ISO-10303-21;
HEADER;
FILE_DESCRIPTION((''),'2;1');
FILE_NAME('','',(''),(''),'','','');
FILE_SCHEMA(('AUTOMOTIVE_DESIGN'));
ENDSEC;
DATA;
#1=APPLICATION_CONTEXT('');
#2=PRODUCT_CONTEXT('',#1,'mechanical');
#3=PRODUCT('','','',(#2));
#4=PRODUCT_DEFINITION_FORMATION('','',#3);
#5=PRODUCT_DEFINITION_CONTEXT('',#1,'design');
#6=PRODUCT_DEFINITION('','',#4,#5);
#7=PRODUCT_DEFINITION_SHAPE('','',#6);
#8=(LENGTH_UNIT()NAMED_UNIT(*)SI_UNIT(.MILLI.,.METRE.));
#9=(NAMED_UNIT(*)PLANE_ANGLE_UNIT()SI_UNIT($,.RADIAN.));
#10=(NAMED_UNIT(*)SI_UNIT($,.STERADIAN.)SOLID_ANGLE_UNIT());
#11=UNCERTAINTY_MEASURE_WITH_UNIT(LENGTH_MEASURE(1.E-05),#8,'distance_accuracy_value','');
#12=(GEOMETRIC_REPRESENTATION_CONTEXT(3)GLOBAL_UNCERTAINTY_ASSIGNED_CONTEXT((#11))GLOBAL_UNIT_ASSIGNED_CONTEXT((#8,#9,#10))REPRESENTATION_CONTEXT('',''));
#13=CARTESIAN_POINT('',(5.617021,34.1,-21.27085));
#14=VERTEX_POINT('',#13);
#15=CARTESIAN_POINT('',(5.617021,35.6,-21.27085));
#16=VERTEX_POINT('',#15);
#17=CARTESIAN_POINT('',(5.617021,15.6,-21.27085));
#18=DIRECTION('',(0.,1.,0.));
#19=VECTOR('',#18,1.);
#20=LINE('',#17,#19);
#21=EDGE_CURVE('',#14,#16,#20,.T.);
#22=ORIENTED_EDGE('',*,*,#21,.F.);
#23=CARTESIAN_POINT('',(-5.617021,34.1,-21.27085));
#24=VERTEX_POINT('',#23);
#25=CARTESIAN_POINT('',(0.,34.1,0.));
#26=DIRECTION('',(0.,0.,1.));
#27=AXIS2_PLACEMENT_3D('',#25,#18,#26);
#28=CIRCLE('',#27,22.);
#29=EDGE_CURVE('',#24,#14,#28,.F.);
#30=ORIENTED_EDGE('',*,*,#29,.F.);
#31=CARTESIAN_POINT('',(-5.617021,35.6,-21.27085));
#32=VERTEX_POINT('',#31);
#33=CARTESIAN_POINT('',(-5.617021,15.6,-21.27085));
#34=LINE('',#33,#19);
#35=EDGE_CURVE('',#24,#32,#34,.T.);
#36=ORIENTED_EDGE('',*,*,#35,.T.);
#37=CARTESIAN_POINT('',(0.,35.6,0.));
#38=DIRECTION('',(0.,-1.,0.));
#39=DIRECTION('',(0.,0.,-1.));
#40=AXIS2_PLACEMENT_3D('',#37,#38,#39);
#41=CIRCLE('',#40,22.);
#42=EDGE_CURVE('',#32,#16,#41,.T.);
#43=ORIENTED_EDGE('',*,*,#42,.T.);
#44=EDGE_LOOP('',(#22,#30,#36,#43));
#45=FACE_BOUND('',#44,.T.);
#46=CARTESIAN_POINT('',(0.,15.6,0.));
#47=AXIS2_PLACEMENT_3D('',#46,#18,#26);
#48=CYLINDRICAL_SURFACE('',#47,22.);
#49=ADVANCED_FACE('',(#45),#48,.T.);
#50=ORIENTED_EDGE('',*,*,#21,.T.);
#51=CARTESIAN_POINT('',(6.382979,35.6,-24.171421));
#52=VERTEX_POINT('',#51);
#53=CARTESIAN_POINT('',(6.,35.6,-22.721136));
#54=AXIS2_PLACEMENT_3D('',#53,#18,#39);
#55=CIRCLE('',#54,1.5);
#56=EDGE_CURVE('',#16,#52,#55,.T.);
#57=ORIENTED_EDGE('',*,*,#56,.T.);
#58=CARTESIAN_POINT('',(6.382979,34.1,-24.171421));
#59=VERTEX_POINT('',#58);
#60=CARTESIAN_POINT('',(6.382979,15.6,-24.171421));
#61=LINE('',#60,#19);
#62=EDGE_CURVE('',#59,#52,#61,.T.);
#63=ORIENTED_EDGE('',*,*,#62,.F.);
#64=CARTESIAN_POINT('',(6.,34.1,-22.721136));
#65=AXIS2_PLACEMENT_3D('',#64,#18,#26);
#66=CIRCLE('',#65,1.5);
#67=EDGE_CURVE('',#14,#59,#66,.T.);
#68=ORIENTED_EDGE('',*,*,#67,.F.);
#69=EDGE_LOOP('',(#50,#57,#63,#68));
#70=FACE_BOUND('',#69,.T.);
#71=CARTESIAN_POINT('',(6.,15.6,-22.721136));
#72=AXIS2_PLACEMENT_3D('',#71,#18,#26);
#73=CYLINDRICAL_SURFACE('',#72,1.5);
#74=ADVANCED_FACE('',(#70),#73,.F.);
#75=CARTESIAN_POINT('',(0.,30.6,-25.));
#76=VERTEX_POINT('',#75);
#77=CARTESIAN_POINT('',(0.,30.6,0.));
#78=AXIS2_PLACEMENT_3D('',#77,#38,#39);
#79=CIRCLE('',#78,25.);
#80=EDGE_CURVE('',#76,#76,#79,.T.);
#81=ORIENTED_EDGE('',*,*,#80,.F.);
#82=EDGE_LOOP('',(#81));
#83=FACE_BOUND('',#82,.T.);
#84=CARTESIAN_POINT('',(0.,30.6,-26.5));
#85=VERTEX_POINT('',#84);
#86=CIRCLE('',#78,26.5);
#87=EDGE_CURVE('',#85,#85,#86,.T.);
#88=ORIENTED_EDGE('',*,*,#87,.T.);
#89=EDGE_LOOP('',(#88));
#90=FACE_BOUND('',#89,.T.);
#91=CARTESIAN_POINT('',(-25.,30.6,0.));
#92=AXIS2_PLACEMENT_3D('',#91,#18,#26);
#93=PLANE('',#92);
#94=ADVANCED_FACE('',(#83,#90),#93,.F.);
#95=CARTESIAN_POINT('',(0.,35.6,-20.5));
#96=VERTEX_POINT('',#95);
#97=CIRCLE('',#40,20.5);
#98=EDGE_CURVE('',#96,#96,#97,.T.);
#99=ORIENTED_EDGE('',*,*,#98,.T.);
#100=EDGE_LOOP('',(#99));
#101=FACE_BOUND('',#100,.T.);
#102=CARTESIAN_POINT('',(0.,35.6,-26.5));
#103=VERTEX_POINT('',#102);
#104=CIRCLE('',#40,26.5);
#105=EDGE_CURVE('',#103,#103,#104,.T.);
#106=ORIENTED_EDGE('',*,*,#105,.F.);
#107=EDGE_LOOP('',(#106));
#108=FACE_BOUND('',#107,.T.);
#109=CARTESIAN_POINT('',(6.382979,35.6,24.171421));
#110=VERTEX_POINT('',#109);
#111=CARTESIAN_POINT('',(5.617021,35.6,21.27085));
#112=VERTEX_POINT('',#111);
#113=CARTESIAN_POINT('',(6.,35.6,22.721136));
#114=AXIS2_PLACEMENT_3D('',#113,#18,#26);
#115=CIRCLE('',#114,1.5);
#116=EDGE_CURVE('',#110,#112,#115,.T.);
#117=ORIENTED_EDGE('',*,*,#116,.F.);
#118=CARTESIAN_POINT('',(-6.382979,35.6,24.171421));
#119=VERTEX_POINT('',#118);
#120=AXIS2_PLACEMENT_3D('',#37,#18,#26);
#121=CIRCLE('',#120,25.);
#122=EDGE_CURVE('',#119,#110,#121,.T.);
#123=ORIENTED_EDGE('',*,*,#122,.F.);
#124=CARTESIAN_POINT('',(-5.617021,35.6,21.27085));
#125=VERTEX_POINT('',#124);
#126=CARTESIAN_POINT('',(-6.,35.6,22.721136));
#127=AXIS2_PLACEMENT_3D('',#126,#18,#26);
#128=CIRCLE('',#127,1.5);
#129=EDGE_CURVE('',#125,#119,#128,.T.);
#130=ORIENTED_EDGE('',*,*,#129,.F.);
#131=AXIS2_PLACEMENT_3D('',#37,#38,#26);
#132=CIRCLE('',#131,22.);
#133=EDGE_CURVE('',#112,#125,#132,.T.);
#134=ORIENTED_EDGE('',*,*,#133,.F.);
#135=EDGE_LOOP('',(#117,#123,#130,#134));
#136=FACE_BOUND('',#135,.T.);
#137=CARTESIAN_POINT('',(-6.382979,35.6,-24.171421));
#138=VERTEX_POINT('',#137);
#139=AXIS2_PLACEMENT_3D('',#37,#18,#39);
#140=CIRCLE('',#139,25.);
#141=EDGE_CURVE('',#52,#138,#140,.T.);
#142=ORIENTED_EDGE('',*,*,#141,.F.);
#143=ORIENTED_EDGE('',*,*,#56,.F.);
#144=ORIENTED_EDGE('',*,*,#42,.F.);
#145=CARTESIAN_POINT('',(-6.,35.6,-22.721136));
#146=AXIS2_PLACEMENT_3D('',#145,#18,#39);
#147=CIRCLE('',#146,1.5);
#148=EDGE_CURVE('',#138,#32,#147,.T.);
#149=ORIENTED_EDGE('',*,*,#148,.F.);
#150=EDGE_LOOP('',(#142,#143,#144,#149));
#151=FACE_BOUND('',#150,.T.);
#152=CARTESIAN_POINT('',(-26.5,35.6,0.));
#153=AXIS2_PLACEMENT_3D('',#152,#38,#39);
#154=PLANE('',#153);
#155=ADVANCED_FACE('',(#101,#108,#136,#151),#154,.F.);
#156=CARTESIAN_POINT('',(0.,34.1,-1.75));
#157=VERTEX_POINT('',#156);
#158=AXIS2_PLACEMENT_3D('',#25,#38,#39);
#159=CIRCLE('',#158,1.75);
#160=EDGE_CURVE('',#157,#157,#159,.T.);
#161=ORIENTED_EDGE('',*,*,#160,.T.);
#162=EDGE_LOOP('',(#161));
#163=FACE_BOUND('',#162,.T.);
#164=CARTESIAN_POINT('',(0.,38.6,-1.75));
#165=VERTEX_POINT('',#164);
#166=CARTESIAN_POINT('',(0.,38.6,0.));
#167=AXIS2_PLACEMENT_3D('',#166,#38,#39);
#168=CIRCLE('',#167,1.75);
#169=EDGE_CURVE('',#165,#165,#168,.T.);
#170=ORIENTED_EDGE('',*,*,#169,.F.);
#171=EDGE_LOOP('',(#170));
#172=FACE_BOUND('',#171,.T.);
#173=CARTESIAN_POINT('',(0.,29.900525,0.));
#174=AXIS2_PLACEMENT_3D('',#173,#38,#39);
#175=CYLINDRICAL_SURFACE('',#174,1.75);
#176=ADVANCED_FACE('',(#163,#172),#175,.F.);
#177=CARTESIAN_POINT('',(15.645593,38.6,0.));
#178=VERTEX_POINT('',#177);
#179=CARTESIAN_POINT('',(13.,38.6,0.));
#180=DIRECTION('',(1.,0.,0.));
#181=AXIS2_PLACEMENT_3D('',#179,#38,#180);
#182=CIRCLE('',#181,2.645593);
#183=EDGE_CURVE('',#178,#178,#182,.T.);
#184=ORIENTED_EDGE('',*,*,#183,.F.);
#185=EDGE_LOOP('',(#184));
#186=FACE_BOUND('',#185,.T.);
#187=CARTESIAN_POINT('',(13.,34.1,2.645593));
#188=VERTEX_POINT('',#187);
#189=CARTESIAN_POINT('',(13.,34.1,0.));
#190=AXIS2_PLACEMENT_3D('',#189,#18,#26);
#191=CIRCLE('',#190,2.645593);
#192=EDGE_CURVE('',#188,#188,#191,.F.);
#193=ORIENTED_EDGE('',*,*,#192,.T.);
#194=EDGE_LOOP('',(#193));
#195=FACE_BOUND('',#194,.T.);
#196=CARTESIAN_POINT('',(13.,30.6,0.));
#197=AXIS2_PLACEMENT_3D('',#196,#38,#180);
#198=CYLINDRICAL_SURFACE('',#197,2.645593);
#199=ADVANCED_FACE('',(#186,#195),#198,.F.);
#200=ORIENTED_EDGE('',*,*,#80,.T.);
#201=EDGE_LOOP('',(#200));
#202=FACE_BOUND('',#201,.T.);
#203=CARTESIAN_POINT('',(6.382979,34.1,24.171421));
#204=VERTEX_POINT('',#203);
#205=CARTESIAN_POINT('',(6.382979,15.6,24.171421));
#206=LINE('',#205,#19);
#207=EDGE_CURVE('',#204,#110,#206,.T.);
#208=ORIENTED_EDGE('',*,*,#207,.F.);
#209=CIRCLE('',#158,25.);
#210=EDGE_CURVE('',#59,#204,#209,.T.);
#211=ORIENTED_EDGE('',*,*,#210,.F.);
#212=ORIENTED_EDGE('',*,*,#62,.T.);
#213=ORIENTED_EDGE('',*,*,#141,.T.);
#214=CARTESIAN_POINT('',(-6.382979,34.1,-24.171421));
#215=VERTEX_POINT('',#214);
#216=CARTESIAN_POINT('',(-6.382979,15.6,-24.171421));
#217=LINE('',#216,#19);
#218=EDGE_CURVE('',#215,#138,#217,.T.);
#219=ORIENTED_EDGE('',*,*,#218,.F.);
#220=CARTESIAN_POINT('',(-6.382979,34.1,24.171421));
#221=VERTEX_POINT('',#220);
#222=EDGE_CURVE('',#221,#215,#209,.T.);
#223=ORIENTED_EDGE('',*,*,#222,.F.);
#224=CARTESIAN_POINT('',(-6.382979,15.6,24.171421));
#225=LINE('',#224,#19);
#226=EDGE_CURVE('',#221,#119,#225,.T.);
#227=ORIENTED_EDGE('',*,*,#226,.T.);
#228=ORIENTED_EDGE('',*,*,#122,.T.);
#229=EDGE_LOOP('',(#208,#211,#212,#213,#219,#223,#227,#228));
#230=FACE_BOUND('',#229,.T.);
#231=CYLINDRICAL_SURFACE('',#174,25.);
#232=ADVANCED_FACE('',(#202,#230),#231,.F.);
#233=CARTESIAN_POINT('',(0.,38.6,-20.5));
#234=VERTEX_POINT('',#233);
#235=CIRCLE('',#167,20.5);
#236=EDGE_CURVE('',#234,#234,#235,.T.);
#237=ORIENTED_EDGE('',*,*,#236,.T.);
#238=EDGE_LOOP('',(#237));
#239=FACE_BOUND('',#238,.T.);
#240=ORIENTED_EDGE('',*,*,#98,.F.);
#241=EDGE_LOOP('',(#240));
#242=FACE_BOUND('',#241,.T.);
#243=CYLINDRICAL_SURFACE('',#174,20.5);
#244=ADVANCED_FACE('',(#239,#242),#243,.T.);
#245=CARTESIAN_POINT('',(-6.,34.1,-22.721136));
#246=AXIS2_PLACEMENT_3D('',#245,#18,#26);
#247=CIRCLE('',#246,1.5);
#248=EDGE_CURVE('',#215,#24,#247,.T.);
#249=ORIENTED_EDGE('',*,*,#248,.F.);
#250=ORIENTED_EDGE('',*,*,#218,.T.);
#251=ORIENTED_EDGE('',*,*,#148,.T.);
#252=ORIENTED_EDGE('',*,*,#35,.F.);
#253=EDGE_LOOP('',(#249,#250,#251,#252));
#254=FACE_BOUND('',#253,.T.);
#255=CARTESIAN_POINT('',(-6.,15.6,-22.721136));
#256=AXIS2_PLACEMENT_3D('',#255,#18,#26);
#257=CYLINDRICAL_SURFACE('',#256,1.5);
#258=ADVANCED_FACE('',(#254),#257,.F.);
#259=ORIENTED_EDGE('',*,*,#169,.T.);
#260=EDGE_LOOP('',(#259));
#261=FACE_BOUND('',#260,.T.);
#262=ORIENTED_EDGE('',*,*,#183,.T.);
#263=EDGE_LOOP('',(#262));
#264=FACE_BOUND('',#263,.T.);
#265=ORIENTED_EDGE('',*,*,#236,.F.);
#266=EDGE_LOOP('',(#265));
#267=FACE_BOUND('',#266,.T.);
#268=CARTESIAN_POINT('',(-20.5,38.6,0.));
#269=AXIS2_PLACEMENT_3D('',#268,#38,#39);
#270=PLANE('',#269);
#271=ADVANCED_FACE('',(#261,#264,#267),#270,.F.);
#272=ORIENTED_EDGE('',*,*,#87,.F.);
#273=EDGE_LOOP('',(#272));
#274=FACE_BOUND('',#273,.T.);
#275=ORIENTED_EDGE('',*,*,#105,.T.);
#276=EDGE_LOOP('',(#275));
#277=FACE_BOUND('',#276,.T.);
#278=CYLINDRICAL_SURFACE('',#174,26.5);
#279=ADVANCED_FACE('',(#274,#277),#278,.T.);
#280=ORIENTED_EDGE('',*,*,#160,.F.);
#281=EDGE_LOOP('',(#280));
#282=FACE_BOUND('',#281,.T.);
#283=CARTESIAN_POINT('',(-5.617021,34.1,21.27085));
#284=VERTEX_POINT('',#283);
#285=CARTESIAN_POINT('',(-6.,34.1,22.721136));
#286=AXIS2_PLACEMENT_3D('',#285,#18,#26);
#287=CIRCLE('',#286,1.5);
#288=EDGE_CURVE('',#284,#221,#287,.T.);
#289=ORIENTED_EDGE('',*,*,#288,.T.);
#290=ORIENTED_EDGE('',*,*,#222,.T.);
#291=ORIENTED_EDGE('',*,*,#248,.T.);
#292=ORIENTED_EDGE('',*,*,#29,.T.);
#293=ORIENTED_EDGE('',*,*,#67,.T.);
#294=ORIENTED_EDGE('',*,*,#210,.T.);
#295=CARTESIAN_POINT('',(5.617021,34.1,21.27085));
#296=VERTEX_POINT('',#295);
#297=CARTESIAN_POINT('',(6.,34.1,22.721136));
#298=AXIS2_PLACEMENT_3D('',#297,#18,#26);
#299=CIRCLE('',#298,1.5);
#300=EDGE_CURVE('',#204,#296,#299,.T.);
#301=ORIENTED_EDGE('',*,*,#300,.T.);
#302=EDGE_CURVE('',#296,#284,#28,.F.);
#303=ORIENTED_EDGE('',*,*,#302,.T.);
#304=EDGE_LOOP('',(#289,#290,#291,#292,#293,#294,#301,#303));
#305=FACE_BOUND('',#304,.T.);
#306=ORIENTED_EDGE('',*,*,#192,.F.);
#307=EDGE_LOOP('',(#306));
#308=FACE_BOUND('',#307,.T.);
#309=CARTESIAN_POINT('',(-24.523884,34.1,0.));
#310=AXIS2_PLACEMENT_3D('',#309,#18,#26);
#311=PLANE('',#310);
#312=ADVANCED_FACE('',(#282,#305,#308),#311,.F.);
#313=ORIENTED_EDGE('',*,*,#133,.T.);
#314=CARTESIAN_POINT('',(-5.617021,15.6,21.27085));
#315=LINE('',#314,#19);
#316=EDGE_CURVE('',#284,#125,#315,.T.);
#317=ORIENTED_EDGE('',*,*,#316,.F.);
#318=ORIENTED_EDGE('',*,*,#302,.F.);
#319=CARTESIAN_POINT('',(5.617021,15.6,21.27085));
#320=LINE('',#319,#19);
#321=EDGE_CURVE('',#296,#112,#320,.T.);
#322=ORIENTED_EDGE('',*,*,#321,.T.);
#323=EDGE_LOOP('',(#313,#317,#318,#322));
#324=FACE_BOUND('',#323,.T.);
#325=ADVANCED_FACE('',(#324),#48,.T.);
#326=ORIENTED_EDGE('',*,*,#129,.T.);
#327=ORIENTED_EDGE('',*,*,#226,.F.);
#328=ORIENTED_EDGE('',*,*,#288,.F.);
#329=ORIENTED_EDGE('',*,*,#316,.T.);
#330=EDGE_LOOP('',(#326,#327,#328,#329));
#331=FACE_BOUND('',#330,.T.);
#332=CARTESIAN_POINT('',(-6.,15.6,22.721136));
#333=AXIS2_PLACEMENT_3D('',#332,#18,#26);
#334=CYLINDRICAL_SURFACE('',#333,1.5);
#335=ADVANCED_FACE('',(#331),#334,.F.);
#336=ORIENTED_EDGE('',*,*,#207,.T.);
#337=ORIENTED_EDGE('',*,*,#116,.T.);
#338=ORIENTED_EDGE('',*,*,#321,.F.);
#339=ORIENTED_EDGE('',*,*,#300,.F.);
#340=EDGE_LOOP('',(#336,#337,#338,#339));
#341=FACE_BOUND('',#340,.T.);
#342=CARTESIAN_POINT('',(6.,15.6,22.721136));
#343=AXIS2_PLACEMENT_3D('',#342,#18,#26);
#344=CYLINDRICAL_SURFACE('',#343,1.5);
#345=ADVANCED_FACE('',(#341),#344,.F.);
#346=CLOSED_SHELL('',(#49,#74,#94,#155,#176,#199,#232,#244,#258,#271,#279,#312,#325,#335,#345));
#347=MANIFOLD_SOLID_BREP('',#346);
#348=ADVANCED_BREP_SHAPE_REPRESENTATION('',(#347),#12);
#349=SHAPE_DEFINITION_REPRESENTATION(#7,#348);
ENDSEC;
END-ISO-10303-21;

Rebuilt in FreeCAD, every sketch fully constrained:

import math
import FreeCAD as App
import Part
import Sketcher
Q = App.Units.Quantity


def add_polygon(sketch, points):
    """Adds a closed chain of lines whose ends are joined by coincident constraints."""
    first, n = sketch.GeometryCount, len(points)
    for a, b in zip(points, points[1:] + points[:1]):
        sketch.addGeometry(Part.LineSegment(App.Vector(*a, 0), App.Vector(*b, 0)), False)
    for i in range(n):
        sketch.addConstraint(Sketcher.Constraint("Coincident", first + i, 2, first + (i + 1) % n, 1))

doc = App.newDocument("Part")
params = doc.addObject("Spreadsheet::Sheet", "Params")
for row, (alias, value) in enumerate([
    ("sketch1_width", "6 mm"),
    ("sketch1_height", "5 mm"),
    ("sketch1_height2", "3 mm"),
    ("sketch1_width2", "1.5 mm"),
    ("sketch1_height3", "3.5 mm"),
    ("revolution_angle", "360 deg"),
    ("groove_angle", "360 deg"),
    ("sketch3_radius", "25 mm"),
    ("sketch3_radius2", "22 mm"),
    ("pocket1_length", "20 mm"),
    ("sketch4_radius", "22 mm"),
    ("sketch4_radius2", "25 mm"),
    ("pocket2_length", "10 mm"),
], start=1):
    params.set(f"A{row}", alias)
    params.set(f"B{row}", "=" + value)
    params.setAlias(f"B{row}", alias)

body = doc.addObject("PartDesign::Body", "Body")

sketch1 = body.newObject("Sketcher::SketchObject", "Sketch")
sketch1.AttachmentSupport = (doc.getObject("XY_Plane"), [""])
sketch1.MapMode = "FlatFace"
add_polygon(sketch1, [(-26.5, 35.6), (-26.5, 30.6), (-25, 30.6), (-25, 34.1), (-1.8, 34.1), (-1.8, 38.6), (-20.5, 38.6), (-20.5, 35.6)])
sketch1.addConstraint([
    Sketcher.Constraint("Vertical", 0),
    Sketcher.Constraint("Horizontal", 1),
    Sketcher.Constraint("Vertical", 2),
    Sketcher.Constraint("Horizontal", 3),
    Sketcher.Constraint("Vertical", 4),
    Sketcher.Constraint("Horizontal", 5),
    Sketcher.Constraint("Vertical", 6),
    Sketcher.Constraint("Horizontal", 7),
    Sketcher.Constraint("DistanceX", 7, 2, 7, 1, Q("6 mm")),
    Sketcher.Constraint("DistanceY", 0, 2, 0, 1, Q("5 mm")),
    Sketcher.Constraint("DistanceY", 6, 2, 6, 1, Q("3 mm")),
    Sketcher.Constraint("DistanceX", 1, 1, 1, 2, Q("1.5 mm")),
    Sketcher.Constraint("DistanceY", 2, 1, 2, 2, Q("3.5 mm")),
    Sketcher.Constraint("DistanceX", 1, 2, -1, 1, Q("25 mm")),
    Sketcher.Constraint("DistanceX", 3, 1, 3, 2, Q("23.25 mm")),
    Sketcher.Constraint("DistanceY", -1, 1, 0, 2, Q("30.6 mm")),
])
sketch1.setExpression("Constraints[16]", "Params.sketch1_width")
sketch1.setExpression("Constraints[17]", "Params.sketch1_height")
sketch1.setExpression("Constraints[18]", "Params.sketch1_height2")
sketch1.setExpression("Constraints[19]", "Params.sketch1_width2")
sketch1.setExpression("Constraints[20]", "Params.sketch1_height3")
revolution = body.newObject("PartDesign::Revolution", "Revolution")
revolution.Profile = sketch1
revolution.ReferenceAxis = (sketch1, ["V_Axis"])
revolution.setExpression("Angle", "Params.revolution_angle")

sketch2 = body.newObject("Sketcher::SketchObject", "Sketch001")
sketch2.AttachmentSupport = (doc.getObject("XY_Plane"), [""])
sketch2.MapMode = "FlatFace"
add_polygon(sketch2, [(10.4, 38.6), (10.4, 33.1), (13, 33.1), (13, 38.6)])
sketch2.addGeometry(Part.LineSegment(App.Vector(13, 33.1, 0), App.Vector(13, 38.6, 0)), True)
sketch2.addConstraint([
    Sketcher.Constraint("Vertical", 0),
    Sketcher.Constraint("Horizontal", 1),
    Sketcher.Constraint("Vertical", 2),
    Sketcher.Constraint("Horizontal", 3),
    Sketcher.Constraint("Vertical", 4),
    Sketcher.Constraint("Coincident", 4, 1, 1, 2),
    Sketcher.Constraint("Horizontal", 3, 2, 4, 2),
    Sketcher.Constraint("DistanceX", -1, 1, 1, 2, Q("13 mm")),
    Sketcher.Constraint("DistanceY", -1, 1, 2, 2, Q("38.6 mm")),
    Sketcher.Constraint("DistanceY", 0, 2, 0, 1, Q("5.49255 mm")),
    Sketcher.Constraint("DistanceX", 1, 1, 1, 2, Q("2.645593 mm")),
])
groove = body.newObject("PartDesign::Groove", "Groove")
groove.Profile = sketch2
groove.ReferenceAxis = (sketch2, ["Axis0"])
groove.setExpression("Angle", "Params.groove_angle")

sketch3 = body.newObject("Sketcher::SketchObject", "Sketch002")
sketch3.AttachmentSupport = (doc.getObject("XZ_Plane"), [""])
sketch3.MapMode = "FlatFace"
sketch3.AttachmentOffset = App.Placement(App.Vector(0, 0, -15.6), App.Rotation())
sketch3.addGeometry([
    Part.ArcOfCircle(Part.Circle(App.Vector(-6, 22.7, 0), App.Vector(0, 0, 1), 1.5), math.radians(105), math.radians(285)),
    Part.ArcOfCircle(Part.Circle(App.Vector(0, 0, 0), App.Vector(0, 0, 1), 25), math.radians(75), math.radians(105)),
    Part.ArcOfCircle(Part.Circle(App.Vector(6, 22.7, 0), App.Vector(0, 0, 1), 1.5), math.radians(-105), math.radians(75)),
    Part.ArcOfCircle(Part.Circle(App.Vector(0, 0, 0), App.Vector(0, 0, 1), 22), math.radians(75), math.radians(105)),
    Part.ArcOfCircle(Part.Circle(App.Vector(6, -22.7, 0), App.Vector(0, 0, 1), 1.5), math.radians(-75), math.radians(105)),
    Part.ArcOfCircle(Part.Circle(App.Vector(0, 0, 0), App.Vector(0, 0, 1), 25), math.radians(-105), math.radians(-75)),
    Part.ArcOfCircle(Part.Circle(App.Vector(-6, -22.7, 0), App.Vector(0, 0, 1), 1.5), math.radians(75), math.radians(255)),
    Part.ArcOfCircle(Part.Circle(App.Vector(0, 0, 0), App.Vector(0, 0, 1), 22), math.radians(-105), math.radians(-75)),
], False)
sketch3.addConstraint([
    Sketcher.Constraint("Tangent", 0, 1, 1, 2),
    Sketcher.Constraint("Tangent", 1, 1, 2, 2),
    Sketcher.Constraint("Tangent", 2, 1, 3, 1),
    Sketcher.Constraint("Tangent", 3, 2, 0, 2),
    Sketcher.Constraint("Tangent", 4, 1, 5, 2),
    Sketcher.Constraint("Tangent", 5, 1, 6, 2),
    Sketcher.Constraint("Tangent", 6, 1, 7, 1),
    Sketcher.Constraint("Tangent", 7, 2, 4, 2),
    Sketcher.Constraint("Coincident", 1, 3, -1, 1),
    Sketcher.Constraint("Coincident", 3, 3, -1, 1),
    Sketcher.Constraint("Coincident", 5, 3, -1, 1),
    Sketcher.Constraint("Coincident", 7, 3, -1, 1),
    Sketcher.Constraint("Equal", 2, 4),
    Sketcher.Constraint("Equal", 1, 5),
    Sketcher.Constraint("Horizontal", 0, 3, 2, 3),
    Sketcher.Constraint("Horizontal", 4, 3, 6, 3),
    Sketcher.Constraint("Vertical", 2, 3, 4, 3),
    Sketcher.Constraint("Radius", 1, Q("25 mm")),
    Sketcher.Constraint("Radius", 3, Q("22 mm")),
    Sketcher.Constraint("DistanceX", 0, 3, -1, 1, Q("6 mm")),
])
sketch3.setExpression("Constraints[17]", "Params.sketch3_radius")
sketch3.setExpression("Constraints[18]", "Params.sketch3_radius2")
pocket1 = body.newObject("PartDesign::Pocket", "Pocket")
pocket1.Profile = sketch3
pocket1.setExpression("Length", "Params.pocket1_length")

sketch4 = body.newObject("Sketcher::SketchObject", "Sketch003")
sketch4.AttachmentSupport = (doc.getObject("XZ_Plane"), [""])
sketch4.MapMode = "FlatFace"
sketch4.AttachmentOffset = App.Placement(App.Vector(0, 0, -25.6), App.Rotation())
sketch4.addGeometry([
    Part.ArcOfCircle(Part.Circle(App.Vector(0, 0, 0), App.Vector(0, 0, 1), 22), math.radians(75), math.radians(105)),
    Part.ArcOfCircle(Part.Circle(App.Vector(-6, 22.7, 0), App.Vector(0, 0, 1), 1.5), math.radians(105), math.radians(285)),
    Part.ArcOfCircle(Part.Circle(App.Vector(0, 0, 0), App.Vector(0, 0, 1), 25), math.radians(75), math.radians(105)),
    Part.ArcOfCircle(Part.Circle(App.Vector(6, 22.7, 0), App.Vector(0, 0, 1), 1.5), math.radians(-105), math.radians(75)),
    Part.ArcOfCircle(Part.Circle(App.Vector(6, -22.7, 0), App.Vector(0, 0, 1), 1.5), math.radians(-75), math.radians(105)),
    Part.ArcOfCircle(Part.Circle(App.Vector(0, 0, 0), App.Vector(0, 0, 1), 25), math.radians(-105), math.radians(-75)),
    Part.ArcOfCircle(Part.Circle(App.Vector(-6, -22.7, 0), App.Vector(0, 0, 1), 1.5), math.radians(75), math.radians(255)),
    Part.ArcOfCircle(Part.Circle(App.Vector(0, 0, 0), App.Vector(0, 0, 1), 22), math.radians(-105), math.radians(-75)),
], False)
sketch4.addConstraint([
    Sketcher.Constraint("Tangent", 0, 2, 1, 2),
    Sketcher.Constraint("Tangent", 1, 1, 2, 2),
    Sketcher.Constraint("Tangent", 2, 1, 3, 2),
    Sketcher.Constraint("Tangent", 3, 1, 0, 1),
    Sketcher.Constraint("Tangent", 4, 1, 5, 2),
    Sketcher.Constraint("Tangent", 5, 1, 6, 2),
    Sketcher.Constraint("Tangent", 6, 1, 7, 1),
    Sketcher.Constraint("Tangent", 7, 2, 4, 2),
    Sketcher.Constraint("Coincident", 0, 3, -1, 1),
    Sketcher.Constraint("Coincident", 2, 3, -1, 1),
    Sketcher.Constraint("Coincident", 5, 3, -1, 1),
    Sketcher.Constraint("Coincident", 7, 3, -1, 1),
    Sketcher.Constraint("Equal", 3, 4),
    Sketcher.Constraint("Equal", 2, 5),
    Sketcher.Constraint("Horizontal", 1, 3, 3, 3),
    Sketcher.Constraint("Horizontal", 4, 3, 6, 3),
    Sketcher.Constraint("Vertical", 3, 3, 4, 3),
    Sketcher.Constraint("Radius", 0, Q("22 mm")),
    Sketcher.Constraint("Radius", 2, Q("25 mm")),
    Sketcher.Constraint("DistanceX", 1, 3, -1, 1, Q("6 mm")),
])
sketch4.setExpression("Constraints[17]", "Params.sketch4_radius")
sketch4.setExpression("Constraints[18]", "Params.sketch4_radius2")
pocket2 = body.newObject("PartDesign::Pocket", "Pocket001")
pocket2.Profile = sketch4
pocket2.setExpression("Length", "Params.pocket2_length")

doc.recompute()
